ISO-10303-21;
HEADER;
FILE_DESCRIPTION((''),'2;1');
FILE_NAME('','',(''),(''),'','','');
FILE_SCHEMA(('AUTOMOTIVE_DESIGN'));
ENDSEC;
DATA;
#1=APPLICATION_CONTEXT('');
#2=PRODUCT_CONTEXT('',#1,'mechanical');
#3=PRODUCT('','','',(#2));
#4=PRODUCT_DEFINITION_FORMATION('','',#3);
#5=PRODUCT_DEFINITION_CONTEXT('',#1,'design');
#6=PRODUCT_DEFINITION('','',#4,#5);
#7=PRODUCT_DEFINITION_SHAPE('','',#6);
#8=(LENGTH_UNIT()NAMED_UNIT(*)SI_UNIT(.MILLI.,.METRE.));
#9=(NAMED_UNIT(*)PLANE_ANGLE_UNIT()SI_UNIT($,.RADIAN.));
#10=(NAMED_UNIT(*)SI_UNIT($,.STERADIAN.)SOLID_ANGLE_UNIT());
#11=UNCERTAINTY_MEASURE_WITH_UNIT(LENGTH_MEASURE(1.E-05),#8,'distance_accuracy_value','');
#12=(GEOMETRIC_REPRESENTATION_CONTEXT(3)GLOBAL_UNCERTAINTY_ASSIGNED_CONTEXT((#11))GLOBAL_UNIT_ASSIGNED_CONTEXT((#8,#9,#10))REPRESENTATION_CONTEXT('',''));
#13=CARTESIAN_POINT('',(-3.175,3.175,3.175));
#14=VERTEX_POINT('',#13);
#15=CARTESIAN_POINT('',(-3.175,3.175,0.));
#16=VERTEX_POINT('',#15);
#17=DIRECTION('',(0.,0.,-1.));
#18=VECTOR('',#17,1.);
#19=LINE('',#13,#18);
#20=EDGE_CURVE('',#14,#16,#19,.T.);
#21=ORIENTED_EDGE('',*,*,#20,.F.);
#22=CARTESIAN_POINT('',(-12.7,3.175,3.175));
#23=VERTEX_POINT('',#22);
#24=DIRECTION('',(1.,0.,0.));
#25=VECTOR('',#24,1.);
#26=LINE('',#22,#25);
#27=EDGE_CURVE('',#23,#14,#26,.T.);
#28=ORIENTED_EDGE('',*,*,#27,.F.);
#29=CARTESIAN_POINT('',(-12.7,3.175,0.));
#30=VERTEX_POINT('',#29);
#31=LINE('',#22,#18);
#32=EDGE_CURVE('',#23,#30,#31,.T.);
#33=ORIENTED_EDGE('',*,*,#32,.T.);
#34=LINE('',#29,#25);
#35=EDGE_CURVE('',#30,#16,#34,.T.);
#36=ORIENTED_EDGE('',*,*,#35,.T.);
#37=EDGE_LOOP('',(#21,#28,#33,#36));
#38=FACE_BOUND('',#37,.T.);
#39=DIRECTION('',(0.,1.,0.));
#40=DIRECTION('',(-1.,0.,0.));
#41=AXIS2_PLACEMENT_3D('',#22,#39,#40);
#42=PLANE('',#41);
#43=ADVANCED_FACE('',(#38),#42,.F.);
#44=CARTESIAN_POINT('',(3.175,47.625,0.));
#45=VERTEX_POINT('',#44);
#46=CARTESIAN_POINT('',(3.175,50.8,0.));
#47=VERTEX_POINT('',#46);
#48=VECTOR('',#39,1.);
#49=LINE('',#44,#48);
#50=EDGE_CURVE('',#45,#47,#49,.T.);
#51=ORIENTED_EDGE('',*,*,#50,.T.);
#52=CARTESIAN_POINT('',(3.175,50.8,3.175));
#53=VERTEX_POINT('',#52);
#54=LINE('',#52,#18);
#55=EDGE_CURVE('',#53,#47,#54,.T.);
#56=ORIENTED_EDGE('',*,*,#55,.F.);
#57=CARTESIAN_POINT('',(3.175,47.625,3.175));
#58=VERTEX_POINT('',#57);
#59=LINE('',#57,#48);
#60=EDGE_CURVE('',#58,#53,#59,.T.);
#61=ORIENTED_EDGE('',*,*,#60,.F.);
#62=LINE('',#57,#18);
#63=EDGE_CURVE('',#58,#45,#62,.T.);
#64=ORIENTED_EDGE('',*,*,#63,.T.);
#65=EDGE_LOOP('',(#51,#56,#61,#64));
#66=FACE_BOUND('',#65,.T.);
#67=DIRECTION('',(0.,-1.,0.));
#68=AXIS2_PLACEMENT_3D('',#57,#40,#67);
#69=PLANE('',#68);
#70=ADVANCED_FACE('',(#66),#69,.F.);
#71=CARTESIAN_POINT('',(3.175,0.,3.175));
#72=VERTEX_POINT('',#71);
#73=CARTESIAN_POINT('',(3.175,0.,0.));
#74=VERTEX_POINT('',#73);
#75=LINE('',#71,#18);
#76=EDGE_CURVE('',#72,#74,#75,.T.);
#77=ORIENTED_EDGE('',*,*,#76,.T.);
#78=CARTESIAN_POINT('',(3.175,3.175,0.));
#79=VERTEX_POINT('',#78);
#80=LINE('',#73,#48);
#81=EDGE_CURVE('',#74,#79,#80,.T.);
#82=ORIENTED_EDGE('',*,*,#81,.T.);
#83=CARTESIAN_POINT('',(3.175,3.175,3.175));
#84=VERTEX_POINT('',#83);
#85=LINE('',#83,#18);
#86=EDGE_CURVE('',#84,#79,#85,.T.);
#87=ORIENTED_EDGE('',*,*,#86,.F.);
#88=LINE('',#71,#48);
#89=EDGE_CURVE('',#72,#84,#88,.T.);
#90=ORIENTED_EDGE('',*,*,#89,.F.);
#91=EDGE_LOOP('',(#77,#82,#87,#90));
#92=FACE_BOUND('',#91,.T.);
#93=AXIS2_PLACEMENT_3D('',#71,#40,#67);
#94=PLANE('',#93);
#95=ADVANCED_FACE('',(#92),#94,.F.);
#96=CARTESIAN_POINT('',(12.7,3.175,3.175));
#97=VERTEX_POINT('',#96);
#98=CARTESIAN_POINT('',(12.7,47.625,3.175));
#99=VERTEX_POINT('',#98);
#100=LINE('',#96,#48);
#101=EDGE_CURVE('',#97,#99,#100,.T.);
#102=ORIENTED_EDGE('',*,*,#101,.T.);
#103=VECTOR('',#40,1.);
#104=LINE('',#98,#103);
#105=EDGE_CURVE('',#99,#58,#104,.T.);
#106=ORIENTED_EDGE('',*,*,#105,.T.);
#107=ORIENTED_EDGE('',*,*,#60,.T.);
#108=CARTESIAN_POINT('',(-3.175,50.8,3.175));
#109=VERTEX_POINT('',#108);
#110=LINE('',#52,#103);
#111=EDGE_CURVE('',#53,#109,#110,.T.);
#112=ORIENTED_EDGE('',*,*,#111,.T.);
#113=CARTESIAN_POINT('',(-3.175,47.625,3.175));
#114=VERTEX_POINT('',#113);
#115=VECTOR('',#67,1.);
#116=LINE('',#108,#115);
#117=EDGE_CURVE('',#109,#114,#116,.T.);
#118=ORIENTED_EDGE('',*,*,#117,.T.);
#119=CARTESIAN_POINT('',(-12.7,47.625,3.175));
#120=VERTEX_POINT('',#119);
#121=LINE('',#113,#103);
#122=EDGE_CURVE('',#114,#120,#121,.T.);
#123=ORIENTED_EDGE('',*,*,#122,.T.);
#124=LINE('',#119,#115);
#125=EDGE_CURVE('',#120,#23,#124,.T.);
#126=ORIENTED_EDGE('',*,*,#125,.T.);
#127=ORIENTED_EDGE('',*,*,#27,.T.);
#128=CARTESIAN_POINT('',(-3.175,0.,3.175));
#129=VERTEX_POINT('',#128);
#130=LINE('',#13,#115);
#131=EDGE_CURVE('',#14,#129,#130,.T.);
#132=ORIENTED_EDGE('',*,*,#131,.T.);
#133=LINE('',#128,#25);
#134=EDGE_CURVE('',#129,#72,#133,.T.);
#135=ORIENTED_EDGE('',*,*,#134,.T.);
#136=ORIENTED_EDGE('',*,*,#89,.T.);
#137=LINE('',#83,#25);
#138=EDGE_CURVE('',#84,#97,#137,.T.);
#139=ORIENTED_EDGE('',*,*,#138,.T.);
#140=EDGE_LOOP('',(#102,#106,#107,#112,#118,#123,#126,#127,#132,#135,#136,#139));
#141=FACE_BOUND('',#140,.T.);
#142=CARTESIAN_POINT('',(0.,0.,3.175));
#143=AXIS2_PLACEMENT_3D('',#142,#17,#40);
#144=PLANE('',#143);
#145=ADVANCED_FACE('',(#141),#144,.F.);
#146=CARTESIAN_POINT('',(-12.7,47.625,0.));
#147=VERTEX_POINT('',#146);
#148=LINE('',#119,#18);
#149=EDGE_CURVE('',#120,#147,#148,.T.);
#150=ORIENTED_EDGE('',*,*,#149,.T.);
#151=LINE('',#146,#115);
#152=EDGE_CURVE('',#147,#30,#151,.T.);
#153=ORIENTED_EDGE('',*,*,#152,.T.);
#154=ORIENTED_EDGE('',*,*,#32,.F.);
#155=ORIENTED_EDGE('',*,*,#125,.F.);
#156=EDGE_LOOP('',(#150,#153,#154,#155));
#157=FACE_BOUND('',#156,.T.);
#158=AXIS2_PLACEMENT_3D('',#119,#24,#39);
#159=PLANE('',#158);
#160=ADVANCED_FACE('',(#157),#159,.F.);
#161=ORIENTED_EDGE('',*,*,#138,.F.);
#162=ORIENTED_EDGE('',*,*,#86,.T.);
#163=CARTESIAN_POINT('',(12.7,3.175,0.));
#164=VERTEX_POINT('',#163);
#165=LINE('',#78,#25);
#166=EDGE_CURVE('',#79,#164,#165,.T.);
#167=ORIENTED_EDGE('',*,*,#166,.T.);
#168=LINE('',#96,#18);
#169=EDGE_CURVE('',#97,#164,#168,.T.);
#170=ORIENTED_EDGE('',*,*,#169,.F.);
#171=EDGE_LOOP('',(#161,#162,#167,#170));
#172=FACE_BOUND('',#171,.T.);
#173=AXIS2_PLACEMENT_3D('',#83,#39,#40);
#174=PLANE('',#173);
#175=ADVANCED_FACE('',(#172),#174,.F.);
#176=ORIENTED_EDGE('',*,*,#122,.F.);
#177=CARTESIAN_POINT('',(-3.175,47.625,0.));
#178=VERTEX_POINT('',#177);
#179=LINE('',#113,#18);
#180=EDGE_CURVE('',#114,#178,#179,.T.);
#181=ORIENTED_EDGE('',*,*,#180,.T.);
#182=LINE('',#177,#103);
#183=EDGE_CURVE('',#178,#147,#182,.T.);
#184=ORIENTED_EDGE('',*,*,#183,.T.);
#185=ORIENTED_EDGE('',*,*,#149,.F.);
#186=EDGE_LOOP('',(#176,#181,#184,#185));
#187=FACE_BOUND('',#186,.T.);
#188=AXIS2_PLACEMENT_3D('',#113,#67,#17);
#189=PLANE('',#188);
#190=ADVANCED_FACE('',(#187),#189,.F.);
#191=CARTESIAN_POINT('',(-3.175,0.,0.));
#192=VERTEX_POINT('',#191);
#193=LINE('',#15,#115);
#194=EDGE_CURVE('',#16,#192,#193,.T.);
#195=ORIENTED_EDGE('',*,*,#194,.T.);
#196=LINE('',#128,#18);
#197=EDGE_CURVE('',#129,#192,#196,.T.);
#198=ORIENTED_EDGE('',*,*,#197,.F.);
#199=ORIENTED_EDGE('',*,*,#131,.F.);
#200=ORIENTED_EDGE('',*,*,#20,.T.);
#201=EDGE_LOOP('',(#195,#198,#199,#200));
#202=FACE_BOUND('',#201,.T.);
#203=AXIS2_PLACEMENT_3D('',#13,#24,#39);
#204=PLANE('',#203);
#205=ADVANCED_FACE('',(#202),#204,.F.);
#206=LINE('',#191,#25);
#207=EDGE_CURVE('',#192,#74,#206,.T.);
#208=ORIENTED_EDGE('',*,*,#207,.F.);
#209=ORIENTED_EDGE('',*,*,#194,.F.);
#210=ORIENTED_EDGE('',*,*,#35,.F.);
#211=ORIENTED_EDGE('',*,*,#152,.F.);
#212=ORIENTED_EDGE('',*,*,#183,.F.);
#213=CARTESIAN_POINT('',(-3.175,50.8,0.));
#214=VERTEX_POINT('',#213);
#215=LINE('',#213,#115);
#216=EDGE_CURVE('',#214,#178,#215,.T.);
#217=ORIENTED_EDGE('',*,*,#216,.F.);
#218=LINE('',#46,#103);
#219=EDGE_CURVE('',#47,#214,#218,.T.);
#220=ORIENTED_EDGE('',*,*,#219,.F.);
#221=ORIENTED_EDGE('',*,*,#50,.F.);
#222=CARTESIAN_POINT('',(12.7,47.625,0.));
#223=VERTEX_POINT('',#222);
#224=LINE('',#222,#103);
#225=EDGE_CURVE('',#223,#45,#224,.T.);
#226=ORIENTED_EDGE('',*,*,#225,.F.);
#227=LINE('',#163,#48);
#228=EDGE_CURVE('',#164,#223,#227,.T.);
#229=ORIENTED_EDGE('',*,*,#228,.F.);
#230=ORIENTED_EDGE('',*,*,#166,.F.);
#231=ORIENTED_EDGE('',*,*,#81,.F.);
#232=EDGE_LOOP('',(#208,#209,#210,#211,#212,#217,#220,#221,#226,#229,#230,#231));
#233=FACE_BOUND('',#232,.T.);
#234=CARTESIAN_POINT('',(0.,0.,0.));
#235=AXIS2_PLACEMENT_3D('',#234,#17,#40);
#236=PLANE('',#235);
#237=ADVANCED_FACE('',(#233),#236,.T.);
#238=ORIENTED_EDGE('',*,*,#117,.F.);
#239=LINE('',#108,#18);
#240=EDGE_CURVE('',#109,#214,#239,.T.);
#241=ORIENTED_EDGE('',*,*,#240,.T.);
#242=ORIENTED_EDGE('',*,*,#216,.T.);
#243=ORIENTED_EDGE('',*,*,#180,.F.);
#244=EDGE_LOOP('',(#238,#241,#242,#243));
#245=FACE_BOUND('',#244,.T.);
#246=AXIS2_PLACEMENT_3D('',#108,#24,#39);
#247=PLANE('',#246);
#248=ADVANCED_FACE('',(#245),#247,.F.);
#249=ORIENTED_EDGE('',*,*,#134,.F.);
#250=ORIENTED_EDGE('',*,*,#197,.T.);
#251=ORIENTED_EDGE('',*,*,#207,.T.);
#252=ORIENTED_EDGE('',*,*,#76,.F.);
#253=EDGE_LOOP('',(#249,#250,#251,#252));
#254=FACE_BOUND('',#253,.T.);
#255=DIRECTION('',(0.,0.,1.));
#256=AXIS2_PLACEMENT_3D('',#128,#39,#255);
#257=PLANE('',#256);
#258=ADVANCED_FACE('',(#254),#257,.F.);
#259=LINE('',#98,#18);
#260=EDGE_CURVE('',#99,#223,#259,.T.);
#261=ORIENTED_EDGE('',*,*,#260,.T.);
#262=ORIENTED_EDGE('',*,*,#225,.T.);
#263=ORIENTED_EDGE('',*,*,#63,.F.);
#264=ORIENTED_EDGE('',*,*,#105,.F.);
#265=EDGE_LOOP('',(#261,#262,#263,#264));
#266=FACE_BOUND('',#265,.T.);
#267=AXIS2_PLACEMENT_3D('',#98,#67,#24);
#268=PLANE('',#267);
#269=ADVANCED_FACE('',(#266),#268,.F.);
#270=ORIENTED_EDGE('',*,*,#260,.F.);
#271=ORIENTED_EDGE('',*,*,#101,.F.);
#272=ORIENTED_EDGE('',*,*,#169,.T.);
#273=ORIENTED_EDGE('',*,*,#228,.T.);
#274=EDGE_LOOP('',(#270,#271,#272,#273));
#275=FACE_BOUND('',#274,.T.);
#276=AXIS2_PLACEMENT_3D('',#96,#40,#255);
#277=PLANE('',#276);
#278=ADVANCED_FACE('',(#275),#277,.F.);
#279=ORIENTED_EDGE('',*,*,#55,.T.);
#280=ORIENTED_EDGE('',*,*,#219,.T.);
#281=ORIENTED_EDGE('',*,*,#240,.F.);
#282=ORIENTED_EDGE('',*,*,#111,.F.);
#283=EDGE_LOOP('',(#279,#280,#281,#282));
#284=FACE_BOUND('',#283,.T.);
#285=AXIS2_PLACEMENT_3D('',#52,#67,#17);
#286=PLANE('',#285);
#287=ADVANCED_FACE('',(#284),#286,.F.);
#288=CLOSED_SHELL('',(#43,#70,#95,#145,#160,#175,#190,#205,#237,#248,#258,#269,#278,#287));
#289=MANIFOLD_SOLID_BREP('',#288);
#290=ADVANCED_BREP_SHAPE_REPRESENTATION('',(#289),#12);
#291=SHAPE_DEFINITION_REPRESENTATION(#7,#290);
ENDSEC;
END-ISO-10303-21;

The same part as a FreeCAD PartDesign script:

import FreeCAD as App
import Part
import Sketcher
from FreeCAD import Vector
Q = App.Units.Quantity

doc = App.newDocument("Part")
params = doc.addObject("Spreadsheet::Sheet", "Params")
for row, (alias, value) in enumerate([
    ("sketch1_width", "0.25 in"),
    ("sketch1_height", "1.75 in"),
    ("pad1_length", "0.125 in"),
], start=1):
    params.set(f"A{row}", alias)
    params.set(f"B{row}", "=" + value)
    params.setAlias(f"B{row}", alias)

body = doc.addObject("PartDesign::Body", "Body")

# Sketch on XY plane
sketch1 = body.newObject("Sketcher::SketchObject", "Sketch")
sketch1.AttachmentSupport = (doc.getObject("XY_Plane"), [""])
sketch1.MapMode = "FlatFace"
sketch1.addGeometry([
    Part.LineSegment(Vector(-3.2, 0, 0), Vector(3.2, 0, 0)),  # 0
    Part.LineSegment(Vector(3.2, 0, 0), Vector(3.2, 3.2, 0)),  # 1
    Part.LineSegment(Vector(3.2, 3.2, 0), Vector(12.7, 3.2, 0)),  # 2
    Part.LineSegment(Vector(12.7, 3.2, 0), Vector(12.7, 47.6, 0)),  # 3
    Part.LineSegment(Vector(12.7, 47.6, 0), Vector(3.2, 47.6, 0)),  # 4
    Part.LineSegment(Vector(3.2, 47.6, 0), Vector(3.2, 50.8, 0)),  # 5
    Part.LineSegment(Vector(3.2, 50.8, 0), Vector(-3.2, 50.8, 0)),  # 6
    Part.LineSegment(Vector(-3.2, 50.8, 0), Vector(-3.2, 47.6, 0)),  # 7
    Part.LineSegment(Vector(-3.2, 47.6, 0), Vector(-12.7, 47.6, 0)),  # 8
    Part.LineSegment(Vector(-12.7, 47.6, 0), Vector(-12.7, 3.2, 0)),  # 9
    Part.LineSegment(Vector(-12.7, 3.2, 0), Vector(-3.2, 3.2, 0)),  # 10
    Part.LineSegment(Vector(-3.2, 3.2, 0), Vector(-3.2, 0, 0)),  # 11
], False)
sketch1.addConstraint([
    Sketcher.Constraint("Coincident", 0, 2, 1, 1),
    Sketcher.Constraint("Coincident", 1, 2, 2, 1),
    Sketcher.Constraint("Coincident", 2, 2, 3, 1),
    Sketcher.Constraint("Coincident", 3, 2, 4, 1),
    Sketcher.Constraint("Coincident", 4, 2, 5, 1),
    Sketcher.Constraint("Coincident", 5, 2, 6, 1),
    Sketcher.Constraint("Coincident", 6, 2, 7, 1),
    Sketcher.Constraint("Coincident", 7, 2, 8, 1),
    Sketcher.Constraint("Coincident", 8, 2, 9, 1),
    Sketcher.Constraint("Coincident", 9, 2, 10, 1),
    Sketcher.Constraint("Coincident", 10, 2, 11, 1),
    Sketcher.Constraint("Coincident", 11, 2, 0, 1),
    Sketcher.Constraint("Horizontal", 0),
    Sketcher.Constraint("Vertical", 1),
    Sketcher.Constraint("Horizontal", 2),
    Sketcher.Constraint("Vertical", 3),
    Sketcher.Constraint("Horizontal", 4),
    Sketcher.Constraint("Vertical", 5),
    Sketcher.Constraint("Horizontal", 6),
    Sketcher.Constraint("Vertical", 7),
    Sketcher.Constraint("Horizontal", 8),
    Sketcher.Constraint("Vertical", 9),
    Sketcher.Constraint("Horizontal", 10),
    Sketcher.Constraint("Vertical", 11),
    Sketcher.Constraint("Symmetric", 0, 2, 11, 2, -1, 1),
    Sketcher.Constraint("Symmetric", 4, 2, 7, 2, -2),
    Sketcher.Constraint("Symmetric", 2, 2, 9, 2, -2),
    Sketcher.Constraint("Vertical", 1, 2, 4, 2),
    Sketcher.Constraint("Equal", 1, 5),
    Sketcher.Constraint("DistanceY", -1, 1, 5, 2, Q("2 in")),
    Sketcher.Constraint("DistanceX", 8, 2, 3, 2, Q("1 in")),
    Sketcher.Constraint("DistanceX", 0, 1, 0, 2, Q("0.25 in")),
    Sketcher.Constraint("DistanceY", 3, 1, 3, 2, Q("1.75 in")),
])
sketch1.setExpression("Constraints[31]", "Params.sketch1_width")
sketch1.setExpression("Constraints[32]", "Params.sketch1_height")
pad1 = body.newObject("PartDesign::Pad", "Pad")
pad1.Profile = sketch1
pad1.setExpression("Length", "Params.pad1_length")

doc.recompute()
